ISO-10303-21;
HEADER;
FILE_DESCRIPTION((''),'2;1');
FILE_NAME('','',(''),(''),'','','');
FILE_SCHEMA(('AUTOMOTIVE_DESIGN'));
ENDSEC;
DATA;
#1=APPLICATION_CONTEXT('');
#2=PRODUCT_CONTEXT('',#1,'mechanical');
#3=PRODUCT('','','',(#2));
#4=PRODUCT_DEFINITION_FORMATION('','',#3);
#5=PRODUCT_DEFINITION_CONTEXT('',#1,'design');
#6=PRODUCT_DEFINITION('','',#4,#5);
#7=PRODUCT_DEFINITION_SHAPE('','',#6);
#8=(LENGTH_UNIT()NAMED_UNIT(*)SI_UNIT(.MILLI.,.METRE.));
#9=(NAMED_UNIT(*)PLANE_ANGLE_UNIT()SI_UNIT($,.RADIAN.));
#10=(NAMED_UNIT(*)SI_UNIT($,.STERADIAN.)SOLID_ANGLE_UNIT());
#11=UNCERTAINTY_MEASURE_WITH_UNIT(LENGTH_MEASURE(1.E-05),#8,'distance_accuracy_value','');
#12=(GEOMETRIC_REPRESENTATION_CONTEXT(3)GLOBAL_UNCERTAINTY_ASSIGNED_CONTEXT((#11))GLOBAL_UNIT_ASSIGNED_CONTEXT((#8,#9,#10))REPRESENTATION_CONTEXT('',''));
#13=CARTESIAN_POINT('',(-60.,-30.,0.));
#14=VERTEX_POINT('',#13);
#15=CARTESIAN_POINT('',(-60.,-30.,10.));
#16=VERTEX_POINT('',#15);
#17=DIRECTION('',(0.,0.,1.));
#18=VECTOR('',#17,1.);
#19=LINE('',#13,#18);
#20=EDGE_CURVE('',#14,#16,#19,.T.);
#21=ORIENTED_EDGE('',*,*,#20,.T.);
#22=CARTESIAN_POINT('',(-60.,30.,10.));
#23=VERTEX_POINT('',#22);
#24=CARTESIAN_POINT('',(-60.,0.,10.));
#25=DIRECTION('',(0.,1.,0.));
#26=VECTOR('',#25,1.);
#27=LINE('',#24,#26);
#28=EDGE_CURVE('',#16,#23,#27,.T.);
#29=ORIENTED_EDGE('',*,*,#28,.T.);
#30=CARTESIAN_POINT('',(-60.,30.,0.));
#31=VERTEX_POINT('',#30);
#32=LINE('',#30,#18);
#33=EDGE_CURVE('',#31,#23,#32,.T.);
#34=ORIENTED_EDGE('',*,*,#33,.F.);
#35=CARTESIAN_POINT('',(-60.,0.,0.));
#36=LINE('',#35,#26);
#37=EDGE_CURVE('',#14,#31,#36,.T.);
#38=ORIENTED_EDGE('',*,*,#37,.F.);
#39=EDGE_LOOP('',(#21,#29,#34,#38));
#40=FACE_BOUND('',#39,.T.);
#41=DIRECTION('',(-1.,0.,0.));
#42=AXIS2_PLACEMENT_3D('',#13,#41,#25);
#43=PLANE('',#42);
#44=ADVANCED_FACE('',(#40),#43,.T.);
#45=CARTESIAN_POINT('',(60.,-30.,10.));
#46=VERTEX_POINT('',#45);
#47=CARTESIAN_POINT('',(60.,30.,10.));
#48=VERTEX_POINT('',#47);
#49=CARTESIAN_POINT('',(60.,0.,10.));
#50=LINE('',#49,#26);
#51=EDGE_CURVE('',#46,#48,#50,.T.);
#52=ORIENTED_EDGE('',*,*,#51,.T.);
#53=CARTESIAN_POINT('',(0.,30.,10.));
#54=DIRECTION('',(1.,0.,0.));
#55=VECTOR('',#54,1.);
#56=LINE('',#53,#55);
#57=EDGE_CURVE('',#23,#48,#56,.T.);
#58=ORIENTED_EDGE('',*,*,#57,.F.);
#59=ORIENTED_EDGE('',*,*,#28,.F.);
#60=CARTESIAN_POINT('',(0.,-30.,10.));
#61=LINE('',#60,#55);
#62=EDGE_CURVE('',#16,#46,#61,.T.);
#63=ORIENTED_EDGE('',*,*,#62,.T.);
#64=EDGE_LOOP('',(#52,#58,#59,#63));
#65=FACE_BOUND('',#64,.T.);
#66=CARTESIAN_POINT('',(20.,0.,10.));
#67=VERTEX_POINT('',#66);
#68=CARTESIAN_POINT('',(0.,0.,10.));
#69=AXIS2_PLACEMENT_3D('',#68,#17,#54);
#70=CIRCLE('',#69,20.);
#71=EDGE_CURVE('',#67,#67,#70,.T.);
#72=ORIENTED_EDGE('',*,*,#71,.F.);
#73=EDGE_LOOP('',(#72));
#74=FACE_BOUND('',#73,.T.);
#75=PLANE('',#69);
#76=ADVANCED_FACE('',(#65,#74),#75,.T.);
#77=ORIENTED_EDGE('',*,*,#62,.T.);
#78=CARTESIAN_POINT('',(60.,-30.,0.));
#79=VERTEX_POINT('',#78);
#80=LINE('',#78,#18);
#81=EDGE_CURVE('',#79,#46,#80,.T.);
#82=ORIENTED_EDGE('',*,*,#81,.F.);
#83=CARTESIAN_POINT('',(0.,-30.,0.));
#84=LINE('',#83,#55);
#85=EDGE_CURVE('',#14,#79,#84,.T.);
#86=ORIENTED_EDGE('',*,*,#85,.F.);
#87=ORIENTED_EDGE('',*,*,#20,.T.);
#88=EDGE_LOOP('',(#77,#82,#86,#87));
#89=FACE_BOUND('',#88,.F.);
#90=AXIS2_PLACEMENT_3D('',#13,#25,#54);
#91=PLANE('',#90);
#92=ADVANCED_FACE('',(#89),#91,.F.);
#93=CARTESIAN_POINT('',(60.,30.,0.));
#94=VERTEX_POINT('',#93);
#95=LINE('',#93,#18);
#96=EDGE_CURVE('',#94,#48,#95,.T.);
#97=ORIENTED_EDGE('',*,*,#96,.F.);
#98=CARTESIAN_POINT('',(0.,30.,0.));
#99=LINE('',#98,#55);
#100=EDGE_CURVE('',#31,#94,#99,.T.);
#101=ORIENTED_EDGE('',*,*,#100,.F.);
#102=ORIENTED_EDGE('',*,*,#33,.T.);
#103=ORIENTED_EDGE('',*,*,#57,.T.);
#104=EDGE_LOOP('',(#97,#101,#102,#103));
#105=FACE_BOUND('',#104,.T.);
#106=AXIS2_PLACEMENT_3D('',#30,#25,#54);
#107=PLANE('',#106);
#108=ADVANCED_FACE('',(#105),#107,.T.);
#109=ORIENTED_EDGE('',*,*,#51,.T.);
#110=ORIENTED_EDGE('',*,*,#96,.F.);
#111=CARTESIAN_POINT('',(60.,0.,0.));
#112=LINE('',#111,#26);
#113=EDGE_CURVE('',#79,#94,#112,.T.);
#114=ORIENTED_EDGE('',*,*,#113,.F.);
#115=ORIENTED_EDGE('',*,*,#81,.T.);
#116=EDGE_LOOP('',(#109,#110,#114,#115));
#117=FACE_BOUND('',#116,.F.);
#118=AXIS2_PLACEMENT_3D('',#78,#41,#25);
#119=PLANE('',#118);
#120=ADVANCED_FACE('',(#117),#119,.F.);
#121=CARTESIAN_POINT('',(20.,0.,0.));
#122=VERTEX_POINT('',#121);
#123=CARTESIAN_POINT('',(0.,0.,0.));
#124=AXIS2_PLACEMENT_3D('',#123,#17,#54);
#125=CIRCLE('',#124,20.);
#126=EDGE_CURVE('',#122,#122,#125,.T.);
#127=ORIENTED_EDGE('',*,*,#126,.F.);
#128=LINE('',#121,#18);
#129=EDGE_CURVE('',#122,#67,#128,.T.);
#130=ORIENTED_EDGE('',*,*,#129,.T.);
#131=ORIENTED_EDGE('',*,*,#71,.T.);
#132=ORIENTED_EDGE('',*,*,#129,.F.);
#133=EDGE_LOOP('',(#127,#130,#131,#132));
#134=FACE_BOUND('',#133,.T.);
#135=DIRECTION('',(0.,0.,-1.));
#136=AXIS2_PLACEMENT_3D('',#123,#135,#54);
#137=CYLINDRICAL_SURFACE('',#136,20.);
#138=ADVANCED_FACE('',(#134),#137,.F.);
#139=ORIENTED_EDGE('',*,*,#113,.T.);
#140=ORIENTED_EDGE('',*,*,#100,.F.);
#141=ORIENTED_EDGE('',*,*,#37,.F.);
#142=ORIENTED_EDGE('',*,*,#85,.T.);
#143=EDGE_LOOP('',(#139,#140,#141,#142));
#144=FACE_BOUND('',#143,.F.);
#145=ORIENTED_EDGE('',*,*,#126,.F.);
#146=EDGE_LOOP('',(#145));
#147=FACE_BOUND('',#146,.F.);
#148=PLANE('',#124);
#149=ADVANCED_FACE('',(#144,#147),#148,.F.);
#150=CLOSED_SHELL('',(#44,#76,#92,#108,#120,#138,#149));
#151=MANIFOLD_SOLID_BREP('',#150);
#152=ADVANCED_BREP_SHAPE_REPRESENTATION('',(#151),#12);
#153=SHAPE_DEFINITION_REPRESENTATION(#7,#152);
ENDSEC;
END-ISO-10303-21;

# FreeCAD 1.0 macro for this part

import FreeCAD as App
import Part
import Sketcher
Q = App.Units.Quantity

doc = App.newDocument("Part")
body = doc.addObject("PartDesign::Body", "Body")

sketch1 = body.newObject("Sketcher::SketchObject", "Sketch")
sketch1.AttachmentSupport = (doc.getObject("XY_Plane"), [""])
sketch1.MapMode = "FlatFace"
sketch1.addGeometry(Part.LineSegment(App.Vector(-60, 30, 0), App.Vector(-60, -30, 0)), False)
sketch1.addGeometry(Part.LineSegment(App.Vector(-60, -30, 0), App.Vector(60, -30, 0)), False)
sketch1.addGeometry(Part.LineSegment(App.Vector(60, -30, 0), App.Vector(60, 30, 0)), False)
sketch1.addGeometry(Part.LineSegment(App.Vector(60, 30, 0), App.Vector(-60, 30, 0)), False)
sketch1.addGeometry(Part.Circle(App.Vector(0, 0, 0), App.Vector(0, 0, 1), 20), False)
sketch1.addConstraint(Sketcher.Constraint("Coincident", 0, 2, 1, 1))
sketch1.addConstraint(Sketcher.Constraint("Coincident", 1, 2, 2, 1))
sketch1.addConstraint(Sketcher.Constraint("Coincident", 2, 2, 3, 1))
sketch1.addConstraint(Sketcher.Constraint("Coincident", 3, 2, 0, 1))
sketch1.addConstraint(Sketcher.Constraint("Vertical", 0))
sketch1.addConstraint(Sketcher.Constraint("Horizontal", 1))
sketch1.addConstraint(Sketcher.Constraint("Vertical", 2))
sketch1.addConstraint(Sketcher.Constraint("Horizontal", 3))
sketch1.addConstraint(Sketcher.Constraint("Coincident", 4, 3, -1, 1))
sketch1.addConstraint(Sketcher.Constraint("Symmetric", 0, 2, 2, 2, -1, 1))
sketch1.addConstraint(Sketcher.Constraint("Diameter", 4, Q("40 mm")))
sketch1.addConstraint(Sketcher.Constraint("DistanceX", 1, 1, 1, 2, Q("120 mm")))
sketch1.addConstraint(Sketcher.Constraint("DistanceY", 0, 2, 0, 1, Q("60 mm")))
pad1 = body.newObject("PartDesign::Pad", "Pad")
pad1.Profile = sketch1
pad1.Length = 10

doc.recompute()
